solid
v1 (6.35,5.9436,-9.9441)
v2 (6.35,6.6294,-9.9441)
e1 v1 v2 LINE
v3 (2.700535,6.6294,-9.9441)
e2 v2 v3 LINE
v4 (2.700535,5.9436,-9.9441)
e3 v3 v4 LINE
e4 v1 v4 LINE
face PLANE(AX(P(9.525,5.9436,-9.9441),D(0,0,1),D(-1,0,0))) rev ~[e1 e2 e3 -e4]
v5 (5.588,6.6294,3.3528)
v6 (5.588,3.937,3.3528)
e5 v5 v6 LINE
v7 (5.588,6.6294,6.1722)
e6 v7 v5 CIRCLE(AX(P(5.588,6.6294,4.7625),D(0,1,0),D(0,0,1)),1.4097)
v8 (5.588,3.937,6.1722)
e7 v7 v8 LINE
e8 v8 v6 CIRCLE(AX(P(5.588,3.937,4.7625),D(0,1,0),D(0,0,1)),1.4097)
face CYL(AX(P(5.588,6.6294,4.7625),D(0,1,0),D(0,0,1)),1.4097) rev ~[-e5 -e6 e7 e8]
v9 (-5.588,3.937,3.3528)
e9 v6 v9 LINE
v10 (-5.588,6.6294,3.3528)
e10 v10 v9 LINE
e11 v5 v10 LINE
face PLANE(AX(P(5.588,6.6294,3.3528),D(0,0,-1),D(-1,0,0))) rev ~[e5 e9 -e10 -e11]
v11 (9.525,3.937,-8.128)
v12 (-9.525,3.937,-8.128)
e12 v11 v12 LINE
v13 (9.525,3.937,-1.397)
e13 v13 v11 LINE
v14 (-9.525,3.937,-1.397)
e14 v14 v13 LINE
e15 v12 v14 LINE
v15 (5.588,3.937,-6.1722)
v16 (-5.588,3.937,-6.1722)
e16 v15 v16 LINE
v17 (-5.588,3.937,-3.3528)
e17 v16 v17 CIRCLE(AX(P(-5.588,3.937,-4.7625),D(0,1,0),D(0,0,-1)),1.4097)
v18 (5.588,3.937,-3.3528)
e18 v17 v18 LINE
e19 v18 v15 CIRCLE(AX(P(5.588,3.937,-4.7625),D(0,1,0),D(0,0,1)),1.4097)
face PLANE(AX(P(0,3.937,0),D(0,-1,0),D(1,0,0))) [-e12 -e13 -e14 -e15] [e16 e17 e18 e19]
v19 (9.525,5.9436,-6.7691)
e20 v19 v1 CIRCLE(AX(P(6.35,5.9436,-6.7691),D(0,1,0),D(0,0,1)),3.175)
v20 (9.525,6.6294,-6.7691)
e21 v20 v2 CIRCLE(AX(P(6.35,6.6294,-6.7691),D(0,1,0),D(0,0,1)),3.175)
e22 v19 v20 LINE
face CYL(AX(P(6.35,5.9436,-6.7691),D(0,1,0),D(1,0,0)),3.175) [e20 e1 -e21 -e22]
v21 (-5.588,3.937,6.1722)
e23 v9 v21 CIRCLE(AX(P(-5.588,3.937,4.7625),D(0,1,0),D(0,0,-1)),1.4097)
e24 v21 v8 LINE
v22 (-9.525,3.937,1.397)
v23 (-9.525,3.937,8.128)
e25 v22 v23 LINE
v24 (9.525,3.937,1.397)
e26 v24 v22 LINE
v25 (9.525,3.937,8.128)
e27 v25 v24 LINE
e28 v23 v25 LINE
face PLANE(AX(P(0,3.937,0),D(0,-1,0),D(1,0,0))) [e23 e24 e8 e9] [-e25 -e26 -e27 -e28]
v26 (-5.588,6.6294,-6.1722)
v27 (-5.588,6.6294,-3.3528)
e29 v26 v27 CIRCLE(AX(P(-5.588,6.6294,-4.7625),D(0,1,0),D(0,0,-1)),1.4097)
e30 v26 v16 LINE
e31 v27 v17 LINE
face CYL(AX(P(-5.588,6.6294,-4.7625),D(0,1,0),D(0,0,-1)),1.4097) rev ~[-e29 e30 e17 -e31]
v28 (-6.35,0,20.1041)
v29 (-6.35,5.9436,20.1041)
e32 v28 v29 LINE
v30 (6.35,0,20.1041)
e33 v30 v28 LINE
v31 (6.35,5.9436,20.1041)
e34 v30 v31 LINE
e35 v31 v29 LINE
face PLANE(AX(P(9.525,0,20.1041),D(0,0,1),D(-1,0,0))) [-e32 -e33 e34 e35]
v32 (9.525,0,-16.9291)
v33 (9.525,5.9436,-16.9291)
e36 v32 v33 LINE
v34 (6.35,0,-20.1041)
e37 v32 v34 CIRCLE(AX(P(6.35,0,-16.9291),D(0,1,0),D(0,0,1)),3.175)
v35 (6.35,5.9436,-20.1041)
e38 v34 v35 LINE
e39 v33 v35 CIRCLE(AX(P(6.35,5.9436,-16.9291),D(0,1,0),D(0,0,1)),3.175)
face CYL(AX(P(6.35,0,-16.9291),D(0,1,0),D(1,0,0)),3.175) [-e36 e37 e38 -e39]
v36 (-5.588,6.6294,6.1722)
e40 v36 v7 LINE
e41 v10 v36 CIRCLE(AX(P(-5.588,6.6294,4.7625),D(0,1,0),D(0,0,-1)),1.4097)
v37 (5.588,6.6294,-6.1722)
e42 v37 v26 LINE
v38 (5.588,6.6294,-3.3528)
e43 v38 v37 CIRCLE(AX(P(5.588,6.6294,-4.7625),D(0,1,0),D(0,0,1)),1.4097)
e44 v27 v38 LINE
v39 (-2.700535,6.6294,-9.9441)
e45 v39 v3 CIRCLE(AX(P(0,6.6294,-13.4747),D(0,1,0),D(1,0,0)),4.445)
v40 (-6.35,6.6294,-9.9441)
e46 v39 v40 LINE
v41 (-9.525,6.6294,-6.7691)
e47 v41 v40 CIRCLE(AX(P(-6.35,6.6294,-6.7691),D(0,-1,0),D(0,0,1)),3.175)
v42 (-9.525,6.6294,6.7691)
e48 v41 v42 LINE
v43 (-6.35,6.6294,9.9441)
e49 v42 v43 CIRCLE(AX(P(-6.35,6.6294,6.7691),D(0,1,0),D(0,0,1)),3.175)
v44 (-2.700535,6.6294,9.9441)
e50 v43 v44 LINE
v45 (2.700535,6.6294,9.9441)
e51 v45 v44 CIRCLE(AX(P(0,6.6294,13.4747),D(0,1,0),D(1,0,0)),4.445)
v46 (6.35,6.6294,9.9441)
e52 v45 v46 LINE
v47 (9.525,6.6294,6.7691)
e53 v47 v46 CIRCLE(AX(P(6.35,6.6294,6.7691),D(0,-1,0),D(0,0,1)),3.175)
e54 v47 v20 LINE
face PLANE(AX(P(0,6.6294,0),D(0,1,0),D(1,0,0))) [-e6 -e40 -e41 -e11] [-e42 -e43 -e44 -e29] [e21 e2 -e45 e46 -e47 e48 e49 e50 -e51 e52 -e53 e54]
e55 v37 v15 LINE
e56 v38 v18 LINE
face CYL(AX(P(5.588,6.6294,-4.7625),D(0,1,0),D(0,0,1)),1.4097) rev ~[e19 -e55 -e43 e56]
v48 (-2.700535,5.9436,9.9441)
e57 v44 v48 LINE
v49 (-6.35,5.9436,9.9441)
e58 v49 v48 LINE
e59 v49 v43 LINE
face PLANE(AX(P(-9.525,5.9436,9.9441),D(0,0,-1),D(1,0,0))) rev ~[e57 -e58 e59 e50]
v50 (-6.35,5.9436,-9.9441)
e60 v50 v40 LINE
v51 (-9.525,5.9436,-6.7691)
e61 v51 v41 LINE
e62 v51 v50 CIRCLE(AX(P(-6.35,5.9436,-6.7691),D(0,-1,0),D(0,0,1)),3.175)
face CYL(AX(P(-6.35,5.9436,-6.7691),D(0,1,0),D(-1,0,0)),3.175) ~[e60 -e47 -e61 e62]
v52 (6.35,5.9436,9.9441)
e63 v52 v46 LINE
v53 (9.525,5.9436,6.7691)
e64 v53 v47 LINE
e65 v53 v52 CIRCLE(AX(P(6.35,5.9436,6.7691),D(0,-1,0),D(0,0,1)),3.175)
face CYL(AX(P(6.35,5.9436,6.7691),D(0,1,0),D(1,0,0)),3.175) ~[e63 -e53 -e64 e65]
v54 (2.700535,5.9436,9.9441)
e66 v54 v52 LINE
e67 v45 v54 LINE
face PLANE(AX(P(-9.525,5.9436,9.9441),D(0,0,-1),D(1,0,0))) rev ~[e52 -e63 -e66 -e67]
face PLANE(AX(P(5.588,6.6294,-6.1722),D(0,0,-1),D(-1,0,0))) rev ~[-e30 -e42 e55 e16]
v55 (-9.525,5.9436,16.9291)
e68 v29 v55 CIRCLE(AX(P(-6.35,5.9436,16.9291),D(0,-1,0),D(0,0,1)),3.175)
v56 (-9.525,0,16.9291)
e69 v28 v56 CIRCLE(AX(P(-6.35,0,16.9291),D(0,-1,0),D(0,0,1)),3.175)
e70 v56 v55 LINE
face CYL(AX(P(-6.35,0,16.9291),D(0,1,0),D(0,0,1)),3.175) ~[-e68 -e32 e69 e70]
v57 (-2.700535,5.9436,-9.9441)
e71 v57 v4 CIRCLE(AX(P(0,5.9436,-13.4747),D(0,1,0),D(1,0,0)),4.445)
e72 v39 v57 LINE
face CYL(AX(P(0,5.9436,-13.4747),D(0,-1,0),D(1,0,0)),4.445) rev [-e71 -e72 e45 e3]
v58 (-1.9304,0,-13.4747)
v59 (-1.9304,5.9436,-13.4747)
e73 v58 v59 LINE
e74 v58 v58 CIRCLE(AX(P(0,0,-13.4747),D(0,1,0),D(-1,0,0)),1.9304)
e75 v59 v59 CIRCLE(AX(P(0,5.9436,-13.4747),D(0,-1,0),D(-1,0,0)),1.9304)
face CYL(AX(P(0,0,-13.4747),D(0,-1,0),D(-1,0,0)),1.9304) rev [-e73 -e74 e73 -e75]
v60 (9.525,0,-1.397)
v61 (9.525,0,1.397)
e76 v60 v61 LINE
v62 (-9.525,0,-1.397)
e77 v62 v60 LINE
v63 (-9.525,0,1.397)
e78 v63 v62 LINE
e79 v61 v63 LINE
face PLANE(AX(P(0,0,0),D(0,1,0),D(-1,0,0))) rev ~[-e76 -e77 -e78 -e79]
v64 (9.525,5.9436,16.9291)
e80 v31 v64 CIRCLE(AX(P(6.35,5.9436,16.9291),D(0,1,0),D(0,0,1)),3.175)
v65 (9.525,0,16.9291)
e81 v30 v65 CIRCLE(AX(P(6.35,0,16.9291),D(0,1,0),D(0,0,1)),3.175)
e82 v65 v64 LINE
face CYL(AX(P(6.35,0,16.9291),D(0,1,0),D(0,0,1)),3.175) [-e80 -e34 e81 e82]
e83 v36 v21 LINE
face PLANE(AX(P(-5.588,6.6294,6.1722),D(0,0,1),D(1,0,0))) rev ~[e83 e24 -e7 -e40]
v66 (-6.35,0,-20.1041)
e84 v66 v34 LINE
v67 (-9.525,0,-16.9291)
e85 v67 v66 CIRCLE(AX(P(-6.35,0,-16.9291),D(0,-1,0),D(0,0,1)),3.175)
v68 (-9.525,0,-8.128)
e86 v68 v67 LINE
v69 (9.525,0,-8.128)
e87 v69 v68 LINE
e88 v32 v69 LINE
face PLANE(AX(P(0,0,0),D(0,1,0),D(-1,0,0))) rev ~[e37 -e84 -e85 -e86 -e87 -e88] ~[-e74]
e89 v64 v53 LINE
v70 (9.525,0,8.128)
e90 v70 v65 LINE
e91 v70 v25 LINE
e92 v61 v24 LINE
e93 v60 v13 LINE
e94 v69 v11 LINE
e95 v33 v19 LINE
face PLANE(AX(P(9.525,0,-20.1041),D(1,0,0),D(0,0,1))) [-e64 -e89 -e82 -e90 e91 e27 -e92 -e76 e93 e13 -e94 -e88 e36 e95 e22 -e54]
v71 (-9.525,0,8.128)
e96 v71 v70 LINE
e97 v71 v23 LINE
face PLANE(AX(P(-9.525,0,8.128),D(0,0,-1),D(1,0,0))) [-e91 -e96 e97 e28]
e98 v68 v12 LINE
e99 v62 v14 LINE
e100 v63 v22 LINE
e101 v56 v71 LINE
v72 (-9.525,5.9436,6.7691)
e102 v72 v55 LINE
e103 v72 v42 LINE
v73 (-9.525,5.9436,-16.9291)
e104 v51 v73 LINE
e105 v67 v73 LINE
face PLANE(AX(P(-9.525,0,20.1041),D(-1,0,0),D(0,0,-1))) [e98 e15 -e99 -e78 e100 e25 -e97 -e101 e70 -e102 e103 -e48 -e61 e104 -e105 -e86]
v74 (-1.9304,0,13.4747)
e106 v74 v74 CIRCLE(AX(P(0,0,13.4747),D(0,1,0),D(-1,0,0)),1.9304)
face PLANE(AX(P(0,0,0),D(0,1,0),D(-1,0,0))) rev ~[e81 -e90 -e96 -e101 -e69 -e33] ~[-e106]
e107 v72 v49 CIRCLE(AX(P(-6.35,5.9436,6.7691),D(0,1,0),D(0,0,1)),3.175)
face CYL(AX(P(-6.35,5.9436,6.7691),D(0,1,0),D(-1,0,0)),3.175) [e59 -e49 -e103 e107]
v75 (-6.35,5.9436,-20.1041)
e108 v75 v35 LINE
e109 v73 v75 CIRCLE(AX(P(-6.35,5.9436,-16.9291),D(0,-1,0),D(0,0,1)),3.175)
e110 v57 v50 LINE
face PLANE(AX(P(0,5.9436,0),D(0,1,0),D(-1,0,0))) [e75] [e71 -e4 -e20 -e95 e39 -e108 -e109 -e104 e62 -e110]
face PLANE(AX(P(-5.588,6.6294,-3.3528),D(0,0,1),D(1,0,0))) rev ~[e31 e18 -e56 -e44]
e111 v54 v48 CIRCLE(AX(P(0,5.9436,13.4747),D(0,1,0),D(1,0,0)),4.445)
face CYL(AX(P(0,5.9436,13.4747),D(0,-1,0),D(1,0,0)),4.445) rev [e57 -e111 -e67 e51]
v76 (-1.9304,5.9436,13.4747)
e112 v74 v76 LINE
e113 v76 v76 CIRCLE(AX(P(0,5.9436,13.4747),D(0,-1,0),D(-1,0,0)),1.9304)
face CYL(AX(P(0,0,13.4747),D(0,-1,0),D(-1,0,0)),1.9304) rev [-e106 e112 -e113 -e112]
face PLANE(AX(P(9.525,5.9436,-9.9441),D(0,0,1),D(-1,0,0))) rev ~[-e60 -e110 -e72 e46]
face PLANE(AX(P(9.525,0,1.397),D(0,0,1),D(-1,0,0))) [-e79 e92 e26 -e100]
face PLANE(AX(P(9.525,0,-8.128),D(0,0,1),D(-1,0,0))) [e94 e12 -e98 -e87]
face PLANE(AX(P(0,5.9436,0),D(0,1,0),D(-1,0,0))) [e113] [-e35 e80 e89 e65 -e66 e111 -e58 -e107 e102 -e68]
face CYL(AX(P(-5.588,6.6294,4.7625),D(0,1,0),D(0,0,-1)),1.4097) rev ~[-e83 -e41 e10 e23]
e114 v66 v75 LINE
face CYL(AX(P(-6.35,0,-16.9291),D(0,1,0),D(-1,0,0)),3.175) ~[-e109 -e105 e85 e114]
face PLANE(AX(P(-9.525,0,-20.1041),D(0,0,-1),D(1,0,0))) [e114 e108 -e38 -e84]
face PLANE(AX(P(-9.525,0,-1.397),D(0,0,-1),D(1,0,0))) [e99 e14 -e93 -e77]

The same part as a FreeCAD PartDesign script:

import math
import FreeCAD as App
import Part
import Sketcher
from FreeCAD import Vector
Q = App.Units.Quantity


def edges_at(feature, points):
    """Names of the edges that pass closest to the given points."""
    edges = feature.Shape.Edges
    near = lambda p: min(range(len(edges)), key=lambda i: edges[i].distToShape(Part.Vertex(*p))[0])
    return sorted({f"Edge{near(p) + 1}" for p in points})

doc = App.newDocument("Part")
body = doc.addObject("PartDesign::Body", "Body")

# Sketch on XZ plane
sketch1 = doc.addObject("Sketcher::SketchObject", "Sketch")
body.addObject(sketch1)
sketch1.AttachmentSupport = (doc.XZ_Plane, [""])
sketch1.MapMode = "FlatFace"
sketch1.addGeometry(Part.LineSegment(Vector(-9.5, 20.1, 0), Vector(9.5, 20.1, 0)), False)
sketch1.addGeometry(Part.LineSegment(Vector(9.5, 20.1, 0), Vector(9.5, -20.1, 0)), False)
sketch1.addGeometry(Part.LineSegment(Vector(9.5, -20.1, 0), Vector(-9.5, -20.1, 0)), False)
sketch1.addGeometry(Part.LineSegment(Vector(-9.5, -20.1, 0), Vector(-9.5, 20.1, 0)), False)
sketch1.addGeometry(Part.Circle(Vector(0, -13.5, 0), Vector(0, 0, 1), 1.9), False)
sketch1.addGeometry(Part.Circle(Vector(0, 13.5, 0), Vector(0, 0, 1), 1.9), False)
sketch1.addConstraint(Sketcher.Constraint("Coincident", 0, 2, 1, 1))
sketch1.addConstraint(Sketcher.Constraint("Coincident", 1, 2, 2, 1))
sketch1.addConstraint(Sketcher.Constraint("Coincident", 2, 2, 3, 1))
sketch1.addConstraint(Sketcher.Constraint("Coincident", 3, 2, 0, 1))
sketch1.addConstraint(Sketcher.Constraint("Horizontal", 0))
sketch1.addConstraint(Sketcher.Constraint("Vertical", 1))
sketch1.addConstraint(Sketcher.Constraint("Horizontal", 2))
sketch1.addConstraint(Sketcher.Constraint("Vertical", 3))
sketch1.addConstraint(Sketcher.Constraint("Equal", 4, 5))
sketch1.addConstraint(Sketcher.Constraint("Symmetric", 4, 3, 5, 3, -1, 1))
sketch1.addConstraint(Sketcher.Constraint("Symmetric", 0, 2, 2, 2, -1, 1))
sketch1.addConstraint(Sketcher.Constraint("PointOnObject", 4, 3, -2))
sketch1.addConstraint(Sketcher.Constraint("Diameter", 4, Q("0.152 in")))
sketch1.addConstraint(Sketcher.Constraint("DistanceX", 0, 1, 0, 2, Q("0.75 in")))
sketch1.addConstraint(Sketcher.Constraint("DistanceY", 1, 2, 1, 1, Q("1.583 in")))
sketch1.addConstraint(Sketcher.Constraint("DistanceY", 4, 3, 5, 3, Q("1.061 in")))
pad1 = doc.addObject("PartDesign::Pad", "Pad")
body.addObject(pad1)
pad1.Profile = sketch1
pad1.Length = Q("0.234 in")
pad1.Reversed = True

# Sketch on XZ plane
sketch2 = doc.addObject("Sketcher::SketchObject", "Sketch001")
body.addObject(sketch2)
sketch2.AttachmentSupport = (doc.XZ_Plane, [""])
sketch2.MapMode = "FlatFace"
sketch2.AttachmentOffset = App.Placement(Vector(0, 0, -0.234 * 25.4), App.Rotation())
sketch2.addGeometry(Part.LineSegment(Vector(-10, -10, 0), Vector(-10, 10, 0)), False)
sketch2.addGeometry(Part.LineSegment(Vector(-10, 10, 0), Vector(10, 10, 0)), False)
sketch2.addGeometry(Part.LineSegment(Vector(10, 10, 0), Vector(10, -10, 0)), False)
sketch2.addGeometry(Part.LineSegment(Vector(10, -10, 0), Vector(-10, -10, 0)), False)
sketch2.addConstraint(Sketcher.Constraint("Coincident", 0, 2, 1, 1))
sketch2.addConstraint(Sketcher.Constraint("Coincident", 1, 2, 2, 1))
sketch2.addConstraint(Sketcher.Constraint("Coincident", 2, 2, 3, 1))
sketch2.addConstraint(Sketcher.Constraint("Coincident", 3, 2, 0, 1))
sketch2.addConstraint(Sketcher.Constraint("Vertical", 0))
sketch2.addConstraint(Sketcher.Constraint("Horizontal", 1))
sketch2.addConstraint(Sketcher.Constraint("Vertical", 2))
sketch2.addConstraint(Sketcher.Constraint("Horizontal", 3))
sketch2.addConstraint(Sketcher.Constraint("Symmetric", 0, 2, 2, 2, -1, 1))
sketch2.addConstraint(Sketcher.Constraint("DistanceX", 1, 1, 1, 2, Q("0.75 in")))
sketch2.addConstraint(Sketcher.Constraint("DistanceY", 0, 1, 0, 2, Q("0.783 in")))
pad2 = doc.addObject("PartDesign::Pad", "Pad001")
body.addObject(pad2)
pad2.Profile = sketch2
pad2.Length = Q("0.027 in")
pad2.Reversed = True

# Sketch on XZ plane
sketch3 = doc.addObject("Sketcher::SketchObject", "Sketch002")
body.addObject(sketch3)
sketch3.AttachmentSupport = (doc.XZ_Plane, [""])
sketch3.MapMode = "FlatFace"
sketch3.AttachmentOffset = App.Placement(Vector(0, 0, -0.261 * 25.4), App.Rotation())
sketch3.addGeometry(Part.ArcOfCircle(Part.Circle(Vector(-5.6, -4.8, 0), Vector(0, 0, 1), 1.4), math.radians(90), math.radians(270)), False)
sketch3.addGeometry(Part.LineSegment(Vector(-5.6, -3.4, 0), Vector(5.6, -3.4, 0)), False)
sketch3.addGeometry(Part.ArcOfCircle(Part.Circle(Vector(5.6, -4.8, 0), Vector(0, 0, 1), 1.4), math.radians(-90), math.radians(90)), False)
sketch3.addGeometry(Part.LineSegment(Vector(5.6, -6.2, 0), Vector(-5.6, -6.2, 0)), False)
sketch3.addGeometry(Part.ArcOfCircle(Part.Circle(Vector(-5.6, 4.8, 0), Vector(0, 0, 1), 1.4), math.radians(90), math.radians(270)), False)
sketch3.addGeometry(Part.LineSegment(Vector(-5.6, 6.2, 0), Vector(5.6, 6.2, 0)), False)
sketch3.addGeometry(Part.ArcOfCircle(Part.Circle(Vector(5.6, 4.8, 0), Vector(0, 0, 1), 1.4), math.radians(-90), math.radians(90)), False)
sketch3.addGeometry(Part.LineSegment(Vector(5.6, 3.4, 0), Vector(-5.6, 3.4, 0)), False)
sketch3.addConstraint(Sketcher.Constraint("Tangent", 0, 1, 1, 1))
sketch3.addConstraint(Sketcher.Constraint("Tangent", 1, 2, 2, 2))
sketch3.addConstraint(Sketcher.Constraint("Tangent", 2, 1, 3, 1))
sketch3.addConstraint(Sketcher.Constraint("Tangent", 3, 2, 0, 2))
sketch3.addConstraint(Sketcher.Constraint("Tangent", 4, 1, 5, 1))
sketch3.addConstraint(Sketcher.Constraint("Tangent", 5, 2, 6, 2))
sketch3.addConstraint(Sketcher.Constraint("Tangent", 6, 1, 7, 1))
sketch3.addConstraint(Sketcher.Constraint("Tangent", 7, 2, 4, 2))
sketch3.addConstraint(Sketcher.Constraint("Horizontal", 1))
sketch3.addConstraint(Sketcher.Constraint("Horizontal", 3))
sketch3.addConstraint(Sketcher.Constraint("Horizontal", 5))
sketch3.addConstraint(Sketcher.Constraint("Horizontal", 7))
sketch3.addConstraint(Sketcher.Constraint("Equal", 2, 4))
sketch3.addConstraint(Sketcher.Constraint("Symmetric", 2, 3, 4, 3, -1, 1))
sketch3.addConstraint(Sketcher.Constraint("Vertical", 0, 3, 4, 3))
sketch3.addConstraint(Sketcher.Constraint("Vertical", 2, 3, 6, 3))
sketch3.addConstraint(Sketcher.Constraint("DistanceX", 1, 1, 1, 2, Q("0.44 in")))
sketch3.addConstraint(Sketcher.Constraint("Radius", 0, Q("0.0555 in")))
sketch3.addConstraint(Sketcher.Constraint("DistanceY", 0, 3, 4, 3, Q("0.375 in")))
pocket1 = doc.addObject("PartDesign::Pocket", "Pocket")
body.addObject(pocket1)
pocket1.Profile = sketch3
pocket1.Type = "ThroughAll"
pocket1.Reversed = True

# Sketch on XZ plane
sketch4 = doc.addObject("Sketcher::SketchObject", "Sketch003")
body.addObject(sketch4)
sketch4.AttachmentSupport = (doc.XZ_Plane, [""])
sketch4.MapMode = "FlatFace"
sketch4.addGeometry(Part.LineSegment(Vector(10, -1, 0), Vector(-10, -1, 0)), False)
sketch4.addGeometry(Part.LineSegment(Vector(-10, -1, 0), Vector(-10, -8, 0)), False)
sketch4.addGeometry(Part.LineSegment(Vector(-10, -8, 0), Vector(10, -8, 0)), False)
sketch4.addGeometry(Part.LineSegment(Vector(10, -8, 0), Vector(10, -1, 0)), False)
sketch4.addGeometry(Part.LineSegment(Vector(10, 8, 0), Vector(-10, 8, 0)), False)
sketch4.addGeometry(Part.LineSegment(Vector(-10, 8, 0), Vector(-10, 1, 0)), False)
sketch4.addGeometry(Part.LineSegment(Vector(-10, 1, 0), Vector(10, 1, 0)), False)
sketch4.addGeometry(Part.LineSegment(Vector(10, 1, 0), Vector(10, 8, 0)), False)
sketch4.addConstraint(Sketcher.Constraint("Coincident", 0, 2, 1, 1))
sketch4.addConstraint(Sketcher.Constraint("Coincident", 1, 2, 2, 1))
sketch4.addConstraint(Sketcher.Constraint("Coincident", 2, 2, 3, 1))
sketch4.addConstraint(Sketcher.Constraint("Coincident", 3, 2, 0, 1))
sketch4.addConstraint(Sketcher.Constraint("Coincident", 4, 2, 5, 1))
sketch4.addConstraint(Sketcher.Constraint("Coincident", 5, 2, 6, 1))
sketch4.addConstraint(Sketcher.Constraint("Coincident", 6, 2, 7, 1))
sketch4.addConstraint(Sketcher.Constraint("Coincident", 7, 2, 4, 1))
sketch4.addConstraint(Sketcher.Constraint("Horizontal", 0))
sketch4.addConstraint(Sketcher.Constraint("Vertical", 1))
sketch4.addConstraint(Sketcher.Constraint("Horizontal", 2))
sketch4.addConstraint(Sketcher.Constraint("Vertical", 3))
sketch4.addConstraint(Sketcher.Constraint("Horizontal", 4))
sketch4.addConstraint(Sketcher.Constraint("Vertical", 5))
sketch4.addConstraint(Sketcher.Constraint("Horizontal", 6))
sketch4.addConstraint(Sketcher.Constraint("Vertical", 7))
sketch4.addConstraint(Sketcher.Constraint("Symmetric", 2, 2, 4, 2, -1, 1))
sketch4.addConstraint(Sketcher.Constraint("Symmetric", 0, 2, 6, 2, -1, 1))
sketch4.addConstraint(Sketcher.Constraint("Vertical", 1, 2, 4, 2))
sketch4.addConstraint(Sketcher.Constraint("DistanceX", 0, 2, 0, 1, Q("0.75 in")))
sketch4.addConstraint(Sketcher.Constraint("DistanceY", 1, 2, 1, 1, Q("0.265 in")))
sketch4.addConstraint(Sketcher.Constraint("DistanceY", 1, 2, -1, 1, Q("0.32 in")))
pocket2 = doc.addObject("PartDesign::Pocket", "Pocket001")
body.addObject(pocket2)
pocket2.Profile = sketch4
pocket2.Length = Q("0.155 in")
doc.recompute()

fillet = doc.addObject("PartDesign::Fillet", "Fillet")
body.addObject(fillet)
fillet.Base = (pocket2, edges_at(pocket2, [
    (9.525, 2.972, 20.104),
    (9.525, 2.972, -20.104),
    (-9.525, 2.972, 20.104),
    (-9.525, 2.972, -20.104),
    (9.525, 6.287, -9.944),
    (9.525, 6.287, 9.944),
    (-9.525, 6.287, -9.944),
    (-9.525, 6.287, 9.944),
]))
fillet.Radius = Q("0.125 in")

# Sketch on XZ plane
sketch5 = doc.addObject("Sketcher::SketchObject", "Sketch004")
body.addObject(sketch5)
sketch5.AttachmentSupport = (doc.XZ_Plane, [""])
sketch5.MapMode = "FlatFace"
sketch5.AttachmentOffset = App.Placement(Vector(0, 0, -0.234 * 25.4), App.Rotation())
sketch5.addGeometry(Part.Circle(Vector(0, -13.5, 0), Vector(0, 0, 1), 4.4), False)
sketch5.addGeometry(Part.Circle(Vector(0, -13.5, 0), Vector(0, 0, 1), 1.9), False)
sketch5.addGeometry(Part.Circle(Vector(0, 13.5, 0), Vector(0, 0, 1), 4.4), False)
sketch5.addGeometry(Part.Circle(Vector(0, 13.5, 0), Vector(0, 0, 1), 1.9), False)
sketch5.addConstraint(Sketcher.Constraint("Coincident", 1, 3, 0, 3))
sketch5.addConstraint(Sketcher.Constraint("Coincident", 3, 3, 2, 3))
sketch5.addConstraint(Sketcher.Constraint("Equal", 0, 2))
sketch5.addConstraint(Sketcher.Constraint("Equal", 1, 3))
sketch5.addConstraint(Sketcher.Constraint("Symmetric", 0, 3, 2, 3, -1, 1))
sketch5.addConstraint(Sketcher.Constraint("PointOnObject", 0, 3, -2))
sketch5.addConstraint(Sketcher.Constraint("Diameter", 0, Q("0.35 in")))
sketch5.addConstraint(Sketcher.Constraint("Diameter", 1, Q("0.152 in")))
sketch5.addConstraint(Sketcher.Constraint("DistanceY", 0, 3, 2, 3, Q("1.061 in")))
pocket3 = doc.addObject("PartDesign::Pocket", "Pocket002")
body.addObject(pocket3)
pocket3.Profile = sketch5
pocket3.Length = Q("0.027 in")

doc.recompute()
